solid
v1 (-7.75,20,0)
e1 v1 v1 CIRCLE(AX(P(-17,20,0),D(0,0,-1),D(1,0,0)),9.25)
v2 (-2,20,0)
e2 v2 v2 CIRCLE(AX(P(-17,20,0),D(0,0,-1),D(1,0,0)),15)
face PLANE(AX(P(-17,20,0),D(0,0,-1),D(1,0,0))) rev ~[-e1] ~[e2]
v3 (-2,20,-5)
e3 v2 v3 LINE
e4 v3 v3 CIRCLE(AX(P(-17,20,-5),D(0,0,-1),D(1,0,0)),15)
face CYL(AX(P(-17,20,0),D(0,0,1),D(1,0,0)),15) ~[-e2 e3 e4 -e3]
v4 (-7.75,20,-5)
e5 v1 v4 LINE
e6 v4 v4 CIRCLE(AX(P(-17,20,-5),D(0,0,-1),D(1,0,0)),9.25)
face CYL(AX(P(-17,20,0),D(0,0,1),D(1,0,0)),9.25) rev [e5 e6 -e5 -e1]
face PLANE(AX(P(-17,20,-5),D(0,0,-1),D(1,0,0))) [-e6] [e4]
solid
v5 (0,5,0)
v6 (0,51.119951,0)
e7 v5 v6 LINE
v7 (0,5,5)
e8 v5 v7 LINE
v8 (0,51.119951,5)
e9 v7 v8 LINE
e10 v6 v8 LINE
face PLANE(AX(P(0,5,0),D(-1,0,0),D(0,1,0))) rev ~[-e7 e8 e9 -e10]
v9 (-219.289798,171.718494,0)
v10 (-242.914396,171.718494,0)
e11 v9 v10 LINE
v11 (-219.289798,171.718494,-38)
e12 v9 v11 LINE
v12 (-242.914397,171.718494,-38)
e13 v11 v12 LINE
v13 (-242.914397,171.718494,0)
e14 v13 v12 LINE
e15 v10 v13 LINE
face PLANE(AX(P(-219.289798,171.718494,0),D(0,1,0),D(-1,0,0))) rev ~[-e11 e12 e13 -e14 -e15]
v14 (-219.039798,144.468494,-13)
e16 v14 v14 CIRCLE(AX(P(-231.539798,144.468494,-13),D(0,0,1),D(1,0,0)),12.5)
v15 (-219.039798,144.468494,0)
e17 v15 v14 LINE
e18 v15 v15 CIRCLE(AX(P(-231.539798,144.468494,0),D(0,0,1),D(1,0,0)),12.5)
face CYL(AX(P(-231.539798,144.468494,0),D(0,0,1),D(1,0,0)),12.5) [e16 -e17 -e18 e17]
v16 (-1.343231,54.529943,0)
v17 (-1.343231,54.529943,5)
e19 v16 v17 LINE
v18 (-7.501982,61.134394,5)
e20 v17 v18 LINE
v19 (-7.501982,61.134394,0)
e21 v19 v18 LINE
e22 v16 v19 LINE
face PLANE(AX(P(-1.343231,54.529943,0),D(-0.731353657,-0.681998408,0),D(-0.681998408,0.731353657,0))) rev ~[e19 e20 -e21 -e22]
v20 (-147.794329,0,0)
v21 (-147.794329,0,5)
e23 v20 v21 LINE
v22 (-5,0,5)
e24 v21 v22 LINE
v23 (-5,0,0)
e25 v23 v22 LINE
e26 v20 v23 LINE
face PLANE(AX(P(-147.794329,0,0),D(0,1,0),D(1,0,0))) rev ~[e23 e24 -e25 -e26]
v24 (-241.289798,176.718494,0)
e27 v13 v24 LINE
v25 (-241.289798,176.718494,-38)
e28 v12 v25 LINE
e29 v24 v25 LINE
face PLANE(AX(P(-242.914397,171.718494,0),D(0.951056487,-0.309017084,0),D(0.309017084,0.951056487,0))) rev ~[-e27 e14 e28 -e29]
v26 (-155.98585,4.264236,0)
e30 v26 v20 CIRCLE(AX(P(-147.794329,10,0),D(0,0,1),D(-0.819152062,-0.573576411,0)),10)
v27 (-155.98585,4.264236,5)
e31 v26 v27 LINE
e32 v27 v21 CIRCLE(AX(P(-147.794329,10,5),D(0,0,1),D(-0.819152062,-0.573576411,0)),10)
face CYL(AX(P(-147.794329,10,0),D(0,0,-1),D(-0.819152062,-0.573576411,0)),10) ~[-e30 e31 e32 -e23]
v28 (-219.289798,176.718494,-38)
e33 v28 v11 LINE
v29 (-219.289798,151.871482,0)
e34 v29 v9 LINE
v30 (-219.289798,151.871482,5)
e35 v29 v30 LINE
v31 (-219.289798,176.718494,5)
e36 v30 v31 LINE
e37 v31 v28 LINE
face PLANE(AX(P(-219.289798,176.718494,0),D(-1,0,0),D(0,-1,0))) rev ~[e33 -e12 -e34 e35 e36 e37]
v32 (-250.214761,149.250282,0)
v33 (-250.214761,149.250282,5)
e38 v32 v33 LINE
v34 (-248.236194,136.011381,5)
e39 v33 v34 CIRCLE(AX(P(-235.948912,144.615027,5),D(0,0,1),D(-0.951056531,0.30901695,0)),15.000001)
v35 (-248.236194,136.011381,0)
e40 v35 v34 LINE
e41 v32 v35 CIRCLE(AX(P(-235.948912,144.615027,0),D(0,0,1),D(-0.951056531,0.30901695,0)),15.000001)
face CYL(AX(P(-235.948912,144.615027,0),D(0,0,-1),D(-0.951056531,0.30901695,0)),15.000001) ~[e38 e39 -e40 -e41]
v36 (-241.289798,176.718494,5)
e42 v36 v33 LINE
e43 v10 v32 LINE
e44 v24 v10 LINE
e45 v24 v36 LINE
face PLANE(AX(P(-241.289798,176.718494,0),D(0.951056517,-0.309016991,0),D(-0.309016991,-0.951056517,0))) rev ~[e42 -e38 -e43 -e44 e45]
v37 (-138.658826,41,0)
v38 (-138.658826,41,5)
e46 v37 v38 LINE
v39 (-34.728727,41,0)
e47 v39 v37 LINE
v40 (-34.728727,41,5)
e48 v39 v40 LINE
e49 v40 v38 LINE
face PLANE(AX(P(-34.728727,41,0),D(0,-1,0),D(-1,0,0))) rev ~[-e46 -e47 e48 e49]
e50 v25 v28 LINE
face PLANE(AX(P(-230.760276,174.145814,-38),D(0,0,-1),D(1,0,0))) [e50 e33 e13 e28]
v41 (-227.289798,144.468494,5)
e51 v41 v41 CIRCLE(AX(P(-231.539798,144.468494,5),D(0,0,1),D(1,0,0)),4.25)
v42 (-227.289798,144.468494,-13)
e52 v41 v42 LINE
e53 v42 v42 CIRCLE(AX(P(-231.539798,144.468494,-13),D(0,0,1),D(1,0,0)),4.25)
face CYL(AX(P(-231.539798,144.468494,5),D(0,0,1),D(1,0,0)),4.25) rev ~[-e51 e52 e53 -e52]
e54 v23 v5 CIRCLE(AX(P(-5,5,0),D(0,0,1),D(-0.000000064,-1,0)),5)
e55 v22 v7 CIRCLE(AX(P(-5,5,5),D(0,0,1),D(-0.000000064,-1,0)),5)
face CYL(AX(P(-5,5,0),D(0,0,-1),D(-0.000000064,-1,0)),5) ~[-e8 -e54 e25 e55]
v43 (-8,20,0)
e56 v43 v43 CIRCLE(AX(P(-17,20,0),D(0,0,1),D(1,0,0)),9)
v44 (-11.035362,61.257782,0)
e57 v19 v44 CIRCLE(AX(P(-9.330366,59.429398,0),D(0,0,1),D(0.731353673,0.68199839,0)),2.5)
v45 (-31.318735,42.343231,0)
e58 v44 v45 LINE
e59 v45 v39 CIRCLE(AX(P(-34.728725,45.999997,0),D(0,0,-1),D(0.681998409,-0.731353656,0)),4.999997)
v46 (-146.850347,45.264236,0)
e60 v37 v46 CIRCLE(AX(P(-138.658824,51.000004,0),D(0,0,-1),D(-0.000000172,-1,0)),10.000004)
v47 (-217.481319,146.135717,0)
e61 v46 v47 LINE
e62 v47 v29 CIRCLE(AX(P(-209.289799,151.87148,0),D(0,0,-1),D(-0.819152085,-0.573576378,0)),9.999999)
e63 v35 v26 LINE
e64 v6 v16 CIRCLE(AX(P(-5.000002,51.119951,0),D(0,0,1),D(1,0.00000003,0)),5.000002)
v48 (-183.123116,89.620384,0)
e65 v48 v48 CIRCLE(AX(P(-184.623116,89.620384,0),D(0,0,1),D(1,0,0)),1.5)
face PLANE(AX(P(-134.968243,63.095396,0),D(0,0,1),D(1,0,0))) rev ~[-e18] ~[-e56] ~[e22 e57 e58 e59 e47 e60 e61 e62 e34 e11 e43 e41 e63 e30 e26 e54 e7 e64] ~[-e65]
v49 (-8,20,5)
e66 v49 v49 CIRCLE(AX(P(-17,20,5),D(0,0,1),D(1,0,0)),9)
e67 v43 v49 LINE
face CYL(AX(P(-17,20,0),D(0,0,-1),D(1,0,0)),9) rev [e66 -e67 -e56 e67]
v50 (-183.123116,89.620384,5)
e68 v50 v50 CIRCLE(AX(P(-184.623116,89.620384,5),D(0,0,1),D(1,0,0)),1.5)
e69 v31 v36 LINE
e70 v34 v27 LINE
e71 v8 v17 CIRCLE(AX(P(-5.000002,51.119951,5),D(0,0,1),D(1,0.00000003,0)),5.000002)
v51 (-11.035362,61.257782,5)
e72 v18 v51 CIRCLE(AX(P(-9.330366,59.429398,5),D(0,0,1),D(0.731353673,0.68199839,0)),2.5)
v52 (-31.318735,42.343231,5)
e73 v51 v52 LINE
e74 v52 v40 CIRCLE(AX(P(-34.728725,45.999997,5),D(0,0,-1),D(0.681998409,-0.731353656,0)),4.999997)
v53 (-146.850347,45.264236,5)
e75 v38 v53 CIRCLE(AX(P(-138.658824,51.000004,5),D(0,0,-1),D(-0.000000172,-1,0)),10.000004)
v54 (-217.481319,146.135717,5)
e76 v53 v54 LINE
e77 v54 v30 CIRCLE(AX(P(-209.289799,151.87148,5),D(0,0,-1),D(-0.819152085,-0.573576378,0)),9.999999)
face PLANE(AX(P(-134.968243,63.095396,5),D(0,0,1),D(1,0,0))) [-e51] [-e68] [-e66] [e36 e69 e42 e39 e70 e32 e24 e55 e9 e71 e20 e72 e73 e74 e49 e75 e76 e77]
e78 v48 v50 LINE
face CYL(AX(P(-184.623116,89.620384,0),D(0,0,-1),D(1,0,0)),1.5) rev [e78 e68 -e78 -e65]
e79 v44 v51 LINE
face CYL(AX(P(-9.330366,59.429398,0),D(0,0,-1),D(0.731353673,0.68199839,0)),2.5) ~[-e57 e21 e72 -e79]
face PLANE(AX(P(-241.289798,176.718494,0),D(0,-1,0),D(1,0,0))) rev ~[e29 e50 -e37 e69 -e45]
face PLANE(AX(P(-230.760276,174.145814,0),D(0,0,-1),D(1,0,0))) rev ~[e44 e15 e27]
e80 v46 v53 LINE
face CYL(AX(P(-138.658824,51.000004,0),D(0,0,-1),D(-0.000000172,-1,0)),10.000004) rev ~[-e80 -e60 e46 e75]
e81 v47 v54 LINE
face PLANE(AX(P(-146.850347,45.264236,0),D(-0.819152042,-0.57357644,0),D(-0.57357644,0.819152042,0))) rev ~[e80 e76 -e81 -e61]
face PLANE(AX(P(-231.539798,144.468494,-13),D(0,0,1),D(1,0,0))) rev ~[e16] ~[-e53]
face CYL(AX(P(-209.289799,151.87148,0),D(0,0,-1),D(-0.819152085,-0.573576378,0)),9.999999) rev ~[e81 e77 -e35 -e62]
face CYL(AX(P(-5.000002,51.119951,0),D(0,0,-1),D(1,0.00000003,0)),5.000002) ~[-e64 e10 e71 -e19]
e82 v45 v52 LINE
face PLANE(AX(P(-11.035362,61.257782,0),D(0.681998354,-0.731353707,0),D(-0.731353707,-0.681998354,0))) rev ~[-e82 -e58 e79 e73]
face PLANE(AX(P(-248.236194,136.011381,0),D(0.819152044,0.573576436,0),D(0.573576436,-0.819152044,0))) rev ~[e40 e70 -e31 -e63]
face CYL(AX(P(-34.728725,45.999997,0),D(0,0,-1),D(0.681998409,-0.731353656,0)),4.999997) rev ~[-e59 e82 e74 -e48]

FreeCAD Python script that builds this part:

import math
import FreeCAD as App
import Part
import Sketcher
from FreeCAD import Vector
Q = App.Units.Quantity

doc = App.newDocument("Part")
body = doc.addObject("PartDesign::Body", "Body")

# Sketch on XY plane
sketch1 = body.newObject("Sketcher::SketchObject", "Sketch")
sketch1.AttachmentSupport = (doc.getObject("XY_Plane"), [""])
sketch1.MapMode = "FlatFace"
sketch1.addGeometry(Part.LineSegment(Vector(-147.8, 0, 0), Vector(-5, 0, 0)), False)
sketch1.addGeometry(Part.ArcOfCircle(Part.Circle(Vector(-5, 5, 0), Vector(0, 0, 1), 5), math.radians(-90), math.radians(0)), False)
sketch1.addGeometry(Part.LineSegment(Vector(0, 5, 0), Vector(0, 51.1, 0)), False)
sketch1.addGeometry(Part.ArcOfCircle(Part.Circle(Vector(-5, 51.1, 0), Vector(0, 0, 1), 5), math.radians(0), math.radians(43)), False)
sketch1.addGeometry(Part.LineSegment(Vector(-1.3, 54.5, 0), Vector(-7.5, 61.1, 0)), False)
sketch1.addGeometry(Part.ArcOfCircle(Part.Circle(Vector(-9.3, 59.4, 0), Vector(0, 0, 1), 2.5), math.radians(43), math.radians(133)), False)
sketch1.addGeometry(Part.LineSegment(Vector(-11, 61.3, 0), Vector(-31.3, 42.3, 0)), False)
sketch1.addGeometry(Part.ArcOfCircle(Part.Circle(Vector(-34.7, 46, 0), Vector(0, 0, 1), 5), math.radians(-90), math.radians(-47)), False)
sketch1.addGeometry(Part.LineSegment(Vector(-34.7, 41, 0), Vector(-138.7, 41, 0)), False)
sketch1.addGeometry(Part.ArcOfCircle(Part.Circle(Vector(-138.7, 51, 0), Vector(0, 0, 1), 10), math.radians(-145), math.radians(-90)), False)
sketch1.addGeometry(Part.LineSegment(Vector(-146.9, 45.3, 0), Vector(-217.5, 146.1, 0)), False)
sketch1.addGeometry(Part.ArcOfCircle(Part.Circle(Vector(-209.3, 151.9, 0), Vector(0, 0, 1), 10), math.radians(180), math.radians(215)), False)
sketch1.addGeometry(Part.LineSegment(Vector(-219.3, 151.9, 0), Vector(-219.3, 176.7, 0)), False)
sketch1.addGeometry(Part.LineSegment(Vector(-219.3, 176.7, 0), Vector(-241.3, 176.7, 0)), False)
sketch1.addGeometry(Part.LineSegment(Vector(-241.3, 176.7, 0), Vector(-250.2, 149.3, 0)), False)
sketch1.addGeometry(Part.ArcOfCircle(Part.Circle(Vector(-235.9, 144.6, 0), Vector(0, 0, 1), 15), math.radians(162), math.radians(215)), False)
sketch1.addGeometry(Part.LineSegment(Vector(-248.2, 136, 0), Vector(-156, 4.3, 0)), False)
sketch1.addGeometry(Part.ArcOfCircle(Part.Circle(Vector(-147.8, 10, 0), Vector(0, 0, 1), 10), math.radians(-145), math.radians(-90)), False)
sketch1.addGeometry(Part.Circle(Vector(-17, 20, 0), Vector(0, 0, 1), 9), False)
sketch1.addGeometry(Part.Circle(Vector(-184.6, 89.6, 0), Vector(0, 0, 1), 1.5), False)
sketch1.addConstraint(Sketcher.Constraint("Tangent", 0, 2, 1, 1))
sketch1.addConstraint(Sketcher.Constraint("Tangent", 1, 2, 2, 1))
sketch1.addConstraint(Sketcher.Constraint("Tangent", 2, 2, 3, 1))
sketch1.addConstraint(Sketcher.Constraint("Tangent", 3, 2, 4, 1))
sketch1.addConstraint(Sketcher.Constraint("Tangent", 4, 2, 5, 1))
sketch1.addConstraint(Sketcher.Constraint("Tangent", 5, 2, 6, 1))
sketch1.addConstraint(Sketcher.Constraint("Tangent", 6, 2, 7, 2))
sketch1.addConstraint(Sketcher.Constraint("Tangent", 7, 1, 8, 1))
sketch1.addConstraint(Sketcher.Constraint("Tangent", 8, 2, 9, 2))
sketch1.addConstraint(Sketcher.Constraint("Tangent", 9, 1, 10, 1))
sketch1.addConstraint(Sketcher.Constraint("Tangent", 10, 2, 11, 2))
sketch1.addConstraint(Sketcher.Constraint("Tangent", 11, 1, 12, 1))
sketch1.addConstraint(Sketcher.Constraint("Coincident", 12, 2, 13, 1))
sketch1.addConstraint(Sketcher.Constraint("Coincident", 13, 2, 14, 1))
sketch1.addConstraint(Sketcher.Constraint("Tangent", 14, 2, 15, 1))
sketch1.addConstraint(Sketcher.Constraint("Tangent", 15, 2, 16, 1))
sketch1.addConstraint(Sketcher.Constraint("Tangent", 16, 2, 17, 1))
sketch1.addConstraint(Sketcher.Constraint("Tangent", 17, 2, 0, 1))
sketch1.addConstraint(Sketcher.Constraint("Horizontal", 0))
sketch1.addConstraint(Sketcher.Constraint("Vertical", 2))
sketch1.addConstraint(Sketcher.Constraint("Horizontal", 8))
sketch1.addConstraint(Sketcher.Constraint("Vertical", 12))
sketch1.addConstraint(Sketcher.Constraint("Horizontal", 13))
sketch1.addConstraint(Sketcher.Constraint("Equal", 11, 17))
sketch1.addConstraint(Sketcher.Constraint("PointOnObject", 0, 2, -1))
sketch1.addConstraint(Sketcher.Constraint("PointOnObject", 1, 2, -2))
sketch1.addConstraint(Sketcher.Constraint("Perpendicular", 4, 6))
sketch1.addConstraint(Sketcher.Constraint("Parallel", 10, 16))
sketch1.addConstraint(Sketcher.Constraint("Diameter", 18, 18.0))
sketch1.addConstraint(Sketcher.Constraint("Diameter", 19, 3.0))
sketch1.addConstraint(Sketcher.Constraint("Radius", 1, 5.0))
sketch1.addConstraint(Sketcher.Constraint("Radius", 11, 9.999999))
sketch1.addConstraint(Sketcher.Constraint("Radius", 15, 15.000001))
sketch1.addConstraint(Sketcher.Constraint("Radius", 5, 2.5))
sketch1.addConstraint(Sketcher.Constraint("DistanceX", 13, 2, 13, 1, 22.0))
sketch1.addConstraint(Sketcher.Constraint("Angle", 4, Q("133.000004 deg")))
sketch1.addConstraint(Sketcher.Constraint("Angle", 10, Q("125 deg")))
sketch1.addConstraint(Sketcher.Constraint("Angle", 14, Q("-108 deg")))
sketch1.addConstraint(Sketcher.Constraint("DistanceX", 18, 3, -1, 1, 17.0))
sketch1.addConstraint(Sketcher.Constraint("DistanceY", -1, 1, 18, 3, 20.0))
sketch1.addConstraint(Sketcher.Constraint("DistanceY", -1, 1, 7, 1, 41.0))
sketch1.addConstraint(Sketcher.Constraint("DistanceY", 16, 2, 9, 1, 41.0))
sketch1.addConstraint(Sketcher.Constraint("DistanceX", 8, 2, 8, 1, 103.930099))
sketch1.addConstraint(Sketcher.Constraint("Radius", 3, 5.000002))
sketch1.addConstraint(Sketcher.Constraint("Radius", 7, 4.999997))
sketch1.addConstraint(Sketcher.Constraint("DistanceX", 0, 1, 0, 2, 142.794329))
sketch1.addConstraint(Sketcher.Constraint("DistanceY", 2, 1, 2, 2, 46.119951))
sketch1.addConstraint(Sketcher.Constraint("DistanceY", -1, 1, 5, 3, 59.429398))
sketch1.addConstraint(Sketcher.Constraint("DistanceX", 11, 3, -1, 1, 209.289799))
sketch1.addConstraint(Sketcher.Constraint("DistanceY", 14, 2, 11, 1, 2.6212))
sketch1.addConstraint(Sketcher.Constraint("DistanceX", 19, 3, 9, 3, 45.964292))
sketch1.addConstraint(Sketcher.Constraint("DistanceY", 9, 3, 19, 3, 38.62038))
pad1 = body.newObject("PartDesign::Pad", "Pad")
pad1.Profile = sketch1
pad1.Length = 5

# Sketch on XY plane
sketch2 = body.newObject("Sketcher::SketchObject", "Sketch001")
sketch2.AttachmentSupport = (doc.getObject("XY_Plane"), [""])
sketch2.MapMode = "FlatFace"
sketch2.addGeometry(Part.LineSegment(Vector(-243, 172, 0), Vector(-241, 177, 0)), False)
sketch2.addGeometry(Part.LineSegment(Vector(-241, 177, 0), Vector(-219, 177, 0)), False)
sketch2.addGeometry(Part.LineSegment(Vector(-219, 177, 0), Vector(-219, 172, 0)), False)
sketch2.addGeometry(Part.LineSegment(Vector(-219, 172, 0), Vector(-243, 172, 0)), False)
sketch2.addConstraint(Sketcher.Constraint("Coincident", 0, 2, 1, 1))
sketch2.addConstraint(Sketcher.Constraint("Coincident", 1, 2, 2, 1))
sketch2.addConstraint(Sketcher.Constraint("Coincident", 2, 2, 3, 1))
sketch2.addConstraint(Sketcher.Constraint("Coincident", 3, 2, 0, 1))
sketch2.addConstraint(Sketcher.Constraint("Horizontal", 1))
sketch2.addConstraint(Sketcher.Constraint("Vertical", 2))
sketch2.addConstraint(Sketcher.Constraint("Horizontal", 3))
sketch2.addConstraint(Sketcher.Constraint("DistanceX", 1, 1, 1, 2, 22.0))
sketch2.addConstraint(Sketcher.Constraint("DistanceY", 2, 2, 2, 1, 5.0))
sketch2.addConstraint(Sketcher.Constraint("Angle", 0, Q("71.999995 deg")))
sketch2.addConstraint(Sketcher.Constraint("DistanceX", 0, 2, -1, 1, 241.289798))
sketch2.addConstraint(Sketcher.Constraint("DistanceY", -1, 1, 0, 2, 176.718494))
pad2 = body.newObject("PartDesign::Pad", "Pad001")
pad2.Profile = sketch2
pad2.Length = 38
pad2.Reversed = True

# Sketch on XY plane
sketch3 = body.newObject("Sketcher::SketchObject", "Sketch002")
sketch3.AttachmentSupport = (doc.getObject("XY_Plane"), [""])
sketch3.MapMode = "FlatFace"
sketch3.addGeometry(Part.Circle(Vector(-232, 144, 0), Vector(0, 0, 1), 12), False)
sketch3.addConstraint(Sketcher.Constraint("Diameter", 0, 25.0))
sketch3.addConstraint(Sketcher.Constraint("DistanceX", 0, 3, -1, 1, 231.539798))
sketch3.addConstraint(Sketcher.Constraint("DistanceY", -1, 1, 0, 3, 144.468494))
pad3 = body.newObject("PartDesign::Pad", "Pad002")
pad3.Profile = sketch3
pad3.Length = 13
pad3.Reversed = True

# Sketch on XY plane
sketch4 = body.newObject("Sketcher::SketchObject", "Sketch003")
sketch4.AttachmentSupport = (doc.getObject("XY_Plane"), [""])
sketch4.MapMode = "FlatFace"
sketch4.AttachmentOffset = App.Placement(Vector(0, 0, 5), App.Rotation())
sketch4.addGeometry(Part.Circle(Vector(-231.5, 144.5, 0), Vector(0, 0, 1), 4.2), False)
sketch4.addConstraint(Sketcher.Constraint("Diameter", 0, 8.5))
sketch4.addConstraint(Sketcher.Constraint("DistanceX", 0, 3, -1, 1, 231.539798))
sketch4.addConstraint(Sketcher.Constraint("DistanceY", -1, 1, 0, 3, 144.468494))
pocket1 = body.newObject("PartDesign::Pocket", "Pocket")
pocket1.Profile = sketch4
pocket1.Type = "ThroughAll"
body2 = doc.addObject("PartDesign::Body", "Body001")

# Sketch on XY plane
sketch5 = body2.newObject("Sketcher::SketchObject", "Sketch004")
sketch5.AttachmentSupport = (doc.getObject("XY_Plane001"), [""])
sketch5.MapMode = "FlatFace"
sketch5.addGeometry(Part.Circle(Vector(-17, 20, 0), Vector(0, 0, 1), 15), False)
sketch5.addGeometry(Part.Circle(Vector(-17, 20, 0), Vector(0, 0, 1), 9), False)
sketch5.addConstraint(Sketcher.Constraint("Coincident", 1, 3, 0, 3))
sketch5.addConstraint(Sketcher.Constraint("Diameter", 0, 30.0))
sketch5.addConstraint(Sketcher.Constraint("Diameter", 1, 18.5))
sketch5.addConstraint(Sketcher.Constraint("DistanceX", 0, 3, -1, 1, 17.0))
sketch5.addConstraint(Sketcher.Constraint("DistanceY", -1, 1, 0, 3, 20.0))
pad4 = body2.newObject("PartDesign::Pad", "Pad003")
pad4.Profile = sketch5
pad4.Length = 5
pad4.Reversed = True

doc.recompute()
